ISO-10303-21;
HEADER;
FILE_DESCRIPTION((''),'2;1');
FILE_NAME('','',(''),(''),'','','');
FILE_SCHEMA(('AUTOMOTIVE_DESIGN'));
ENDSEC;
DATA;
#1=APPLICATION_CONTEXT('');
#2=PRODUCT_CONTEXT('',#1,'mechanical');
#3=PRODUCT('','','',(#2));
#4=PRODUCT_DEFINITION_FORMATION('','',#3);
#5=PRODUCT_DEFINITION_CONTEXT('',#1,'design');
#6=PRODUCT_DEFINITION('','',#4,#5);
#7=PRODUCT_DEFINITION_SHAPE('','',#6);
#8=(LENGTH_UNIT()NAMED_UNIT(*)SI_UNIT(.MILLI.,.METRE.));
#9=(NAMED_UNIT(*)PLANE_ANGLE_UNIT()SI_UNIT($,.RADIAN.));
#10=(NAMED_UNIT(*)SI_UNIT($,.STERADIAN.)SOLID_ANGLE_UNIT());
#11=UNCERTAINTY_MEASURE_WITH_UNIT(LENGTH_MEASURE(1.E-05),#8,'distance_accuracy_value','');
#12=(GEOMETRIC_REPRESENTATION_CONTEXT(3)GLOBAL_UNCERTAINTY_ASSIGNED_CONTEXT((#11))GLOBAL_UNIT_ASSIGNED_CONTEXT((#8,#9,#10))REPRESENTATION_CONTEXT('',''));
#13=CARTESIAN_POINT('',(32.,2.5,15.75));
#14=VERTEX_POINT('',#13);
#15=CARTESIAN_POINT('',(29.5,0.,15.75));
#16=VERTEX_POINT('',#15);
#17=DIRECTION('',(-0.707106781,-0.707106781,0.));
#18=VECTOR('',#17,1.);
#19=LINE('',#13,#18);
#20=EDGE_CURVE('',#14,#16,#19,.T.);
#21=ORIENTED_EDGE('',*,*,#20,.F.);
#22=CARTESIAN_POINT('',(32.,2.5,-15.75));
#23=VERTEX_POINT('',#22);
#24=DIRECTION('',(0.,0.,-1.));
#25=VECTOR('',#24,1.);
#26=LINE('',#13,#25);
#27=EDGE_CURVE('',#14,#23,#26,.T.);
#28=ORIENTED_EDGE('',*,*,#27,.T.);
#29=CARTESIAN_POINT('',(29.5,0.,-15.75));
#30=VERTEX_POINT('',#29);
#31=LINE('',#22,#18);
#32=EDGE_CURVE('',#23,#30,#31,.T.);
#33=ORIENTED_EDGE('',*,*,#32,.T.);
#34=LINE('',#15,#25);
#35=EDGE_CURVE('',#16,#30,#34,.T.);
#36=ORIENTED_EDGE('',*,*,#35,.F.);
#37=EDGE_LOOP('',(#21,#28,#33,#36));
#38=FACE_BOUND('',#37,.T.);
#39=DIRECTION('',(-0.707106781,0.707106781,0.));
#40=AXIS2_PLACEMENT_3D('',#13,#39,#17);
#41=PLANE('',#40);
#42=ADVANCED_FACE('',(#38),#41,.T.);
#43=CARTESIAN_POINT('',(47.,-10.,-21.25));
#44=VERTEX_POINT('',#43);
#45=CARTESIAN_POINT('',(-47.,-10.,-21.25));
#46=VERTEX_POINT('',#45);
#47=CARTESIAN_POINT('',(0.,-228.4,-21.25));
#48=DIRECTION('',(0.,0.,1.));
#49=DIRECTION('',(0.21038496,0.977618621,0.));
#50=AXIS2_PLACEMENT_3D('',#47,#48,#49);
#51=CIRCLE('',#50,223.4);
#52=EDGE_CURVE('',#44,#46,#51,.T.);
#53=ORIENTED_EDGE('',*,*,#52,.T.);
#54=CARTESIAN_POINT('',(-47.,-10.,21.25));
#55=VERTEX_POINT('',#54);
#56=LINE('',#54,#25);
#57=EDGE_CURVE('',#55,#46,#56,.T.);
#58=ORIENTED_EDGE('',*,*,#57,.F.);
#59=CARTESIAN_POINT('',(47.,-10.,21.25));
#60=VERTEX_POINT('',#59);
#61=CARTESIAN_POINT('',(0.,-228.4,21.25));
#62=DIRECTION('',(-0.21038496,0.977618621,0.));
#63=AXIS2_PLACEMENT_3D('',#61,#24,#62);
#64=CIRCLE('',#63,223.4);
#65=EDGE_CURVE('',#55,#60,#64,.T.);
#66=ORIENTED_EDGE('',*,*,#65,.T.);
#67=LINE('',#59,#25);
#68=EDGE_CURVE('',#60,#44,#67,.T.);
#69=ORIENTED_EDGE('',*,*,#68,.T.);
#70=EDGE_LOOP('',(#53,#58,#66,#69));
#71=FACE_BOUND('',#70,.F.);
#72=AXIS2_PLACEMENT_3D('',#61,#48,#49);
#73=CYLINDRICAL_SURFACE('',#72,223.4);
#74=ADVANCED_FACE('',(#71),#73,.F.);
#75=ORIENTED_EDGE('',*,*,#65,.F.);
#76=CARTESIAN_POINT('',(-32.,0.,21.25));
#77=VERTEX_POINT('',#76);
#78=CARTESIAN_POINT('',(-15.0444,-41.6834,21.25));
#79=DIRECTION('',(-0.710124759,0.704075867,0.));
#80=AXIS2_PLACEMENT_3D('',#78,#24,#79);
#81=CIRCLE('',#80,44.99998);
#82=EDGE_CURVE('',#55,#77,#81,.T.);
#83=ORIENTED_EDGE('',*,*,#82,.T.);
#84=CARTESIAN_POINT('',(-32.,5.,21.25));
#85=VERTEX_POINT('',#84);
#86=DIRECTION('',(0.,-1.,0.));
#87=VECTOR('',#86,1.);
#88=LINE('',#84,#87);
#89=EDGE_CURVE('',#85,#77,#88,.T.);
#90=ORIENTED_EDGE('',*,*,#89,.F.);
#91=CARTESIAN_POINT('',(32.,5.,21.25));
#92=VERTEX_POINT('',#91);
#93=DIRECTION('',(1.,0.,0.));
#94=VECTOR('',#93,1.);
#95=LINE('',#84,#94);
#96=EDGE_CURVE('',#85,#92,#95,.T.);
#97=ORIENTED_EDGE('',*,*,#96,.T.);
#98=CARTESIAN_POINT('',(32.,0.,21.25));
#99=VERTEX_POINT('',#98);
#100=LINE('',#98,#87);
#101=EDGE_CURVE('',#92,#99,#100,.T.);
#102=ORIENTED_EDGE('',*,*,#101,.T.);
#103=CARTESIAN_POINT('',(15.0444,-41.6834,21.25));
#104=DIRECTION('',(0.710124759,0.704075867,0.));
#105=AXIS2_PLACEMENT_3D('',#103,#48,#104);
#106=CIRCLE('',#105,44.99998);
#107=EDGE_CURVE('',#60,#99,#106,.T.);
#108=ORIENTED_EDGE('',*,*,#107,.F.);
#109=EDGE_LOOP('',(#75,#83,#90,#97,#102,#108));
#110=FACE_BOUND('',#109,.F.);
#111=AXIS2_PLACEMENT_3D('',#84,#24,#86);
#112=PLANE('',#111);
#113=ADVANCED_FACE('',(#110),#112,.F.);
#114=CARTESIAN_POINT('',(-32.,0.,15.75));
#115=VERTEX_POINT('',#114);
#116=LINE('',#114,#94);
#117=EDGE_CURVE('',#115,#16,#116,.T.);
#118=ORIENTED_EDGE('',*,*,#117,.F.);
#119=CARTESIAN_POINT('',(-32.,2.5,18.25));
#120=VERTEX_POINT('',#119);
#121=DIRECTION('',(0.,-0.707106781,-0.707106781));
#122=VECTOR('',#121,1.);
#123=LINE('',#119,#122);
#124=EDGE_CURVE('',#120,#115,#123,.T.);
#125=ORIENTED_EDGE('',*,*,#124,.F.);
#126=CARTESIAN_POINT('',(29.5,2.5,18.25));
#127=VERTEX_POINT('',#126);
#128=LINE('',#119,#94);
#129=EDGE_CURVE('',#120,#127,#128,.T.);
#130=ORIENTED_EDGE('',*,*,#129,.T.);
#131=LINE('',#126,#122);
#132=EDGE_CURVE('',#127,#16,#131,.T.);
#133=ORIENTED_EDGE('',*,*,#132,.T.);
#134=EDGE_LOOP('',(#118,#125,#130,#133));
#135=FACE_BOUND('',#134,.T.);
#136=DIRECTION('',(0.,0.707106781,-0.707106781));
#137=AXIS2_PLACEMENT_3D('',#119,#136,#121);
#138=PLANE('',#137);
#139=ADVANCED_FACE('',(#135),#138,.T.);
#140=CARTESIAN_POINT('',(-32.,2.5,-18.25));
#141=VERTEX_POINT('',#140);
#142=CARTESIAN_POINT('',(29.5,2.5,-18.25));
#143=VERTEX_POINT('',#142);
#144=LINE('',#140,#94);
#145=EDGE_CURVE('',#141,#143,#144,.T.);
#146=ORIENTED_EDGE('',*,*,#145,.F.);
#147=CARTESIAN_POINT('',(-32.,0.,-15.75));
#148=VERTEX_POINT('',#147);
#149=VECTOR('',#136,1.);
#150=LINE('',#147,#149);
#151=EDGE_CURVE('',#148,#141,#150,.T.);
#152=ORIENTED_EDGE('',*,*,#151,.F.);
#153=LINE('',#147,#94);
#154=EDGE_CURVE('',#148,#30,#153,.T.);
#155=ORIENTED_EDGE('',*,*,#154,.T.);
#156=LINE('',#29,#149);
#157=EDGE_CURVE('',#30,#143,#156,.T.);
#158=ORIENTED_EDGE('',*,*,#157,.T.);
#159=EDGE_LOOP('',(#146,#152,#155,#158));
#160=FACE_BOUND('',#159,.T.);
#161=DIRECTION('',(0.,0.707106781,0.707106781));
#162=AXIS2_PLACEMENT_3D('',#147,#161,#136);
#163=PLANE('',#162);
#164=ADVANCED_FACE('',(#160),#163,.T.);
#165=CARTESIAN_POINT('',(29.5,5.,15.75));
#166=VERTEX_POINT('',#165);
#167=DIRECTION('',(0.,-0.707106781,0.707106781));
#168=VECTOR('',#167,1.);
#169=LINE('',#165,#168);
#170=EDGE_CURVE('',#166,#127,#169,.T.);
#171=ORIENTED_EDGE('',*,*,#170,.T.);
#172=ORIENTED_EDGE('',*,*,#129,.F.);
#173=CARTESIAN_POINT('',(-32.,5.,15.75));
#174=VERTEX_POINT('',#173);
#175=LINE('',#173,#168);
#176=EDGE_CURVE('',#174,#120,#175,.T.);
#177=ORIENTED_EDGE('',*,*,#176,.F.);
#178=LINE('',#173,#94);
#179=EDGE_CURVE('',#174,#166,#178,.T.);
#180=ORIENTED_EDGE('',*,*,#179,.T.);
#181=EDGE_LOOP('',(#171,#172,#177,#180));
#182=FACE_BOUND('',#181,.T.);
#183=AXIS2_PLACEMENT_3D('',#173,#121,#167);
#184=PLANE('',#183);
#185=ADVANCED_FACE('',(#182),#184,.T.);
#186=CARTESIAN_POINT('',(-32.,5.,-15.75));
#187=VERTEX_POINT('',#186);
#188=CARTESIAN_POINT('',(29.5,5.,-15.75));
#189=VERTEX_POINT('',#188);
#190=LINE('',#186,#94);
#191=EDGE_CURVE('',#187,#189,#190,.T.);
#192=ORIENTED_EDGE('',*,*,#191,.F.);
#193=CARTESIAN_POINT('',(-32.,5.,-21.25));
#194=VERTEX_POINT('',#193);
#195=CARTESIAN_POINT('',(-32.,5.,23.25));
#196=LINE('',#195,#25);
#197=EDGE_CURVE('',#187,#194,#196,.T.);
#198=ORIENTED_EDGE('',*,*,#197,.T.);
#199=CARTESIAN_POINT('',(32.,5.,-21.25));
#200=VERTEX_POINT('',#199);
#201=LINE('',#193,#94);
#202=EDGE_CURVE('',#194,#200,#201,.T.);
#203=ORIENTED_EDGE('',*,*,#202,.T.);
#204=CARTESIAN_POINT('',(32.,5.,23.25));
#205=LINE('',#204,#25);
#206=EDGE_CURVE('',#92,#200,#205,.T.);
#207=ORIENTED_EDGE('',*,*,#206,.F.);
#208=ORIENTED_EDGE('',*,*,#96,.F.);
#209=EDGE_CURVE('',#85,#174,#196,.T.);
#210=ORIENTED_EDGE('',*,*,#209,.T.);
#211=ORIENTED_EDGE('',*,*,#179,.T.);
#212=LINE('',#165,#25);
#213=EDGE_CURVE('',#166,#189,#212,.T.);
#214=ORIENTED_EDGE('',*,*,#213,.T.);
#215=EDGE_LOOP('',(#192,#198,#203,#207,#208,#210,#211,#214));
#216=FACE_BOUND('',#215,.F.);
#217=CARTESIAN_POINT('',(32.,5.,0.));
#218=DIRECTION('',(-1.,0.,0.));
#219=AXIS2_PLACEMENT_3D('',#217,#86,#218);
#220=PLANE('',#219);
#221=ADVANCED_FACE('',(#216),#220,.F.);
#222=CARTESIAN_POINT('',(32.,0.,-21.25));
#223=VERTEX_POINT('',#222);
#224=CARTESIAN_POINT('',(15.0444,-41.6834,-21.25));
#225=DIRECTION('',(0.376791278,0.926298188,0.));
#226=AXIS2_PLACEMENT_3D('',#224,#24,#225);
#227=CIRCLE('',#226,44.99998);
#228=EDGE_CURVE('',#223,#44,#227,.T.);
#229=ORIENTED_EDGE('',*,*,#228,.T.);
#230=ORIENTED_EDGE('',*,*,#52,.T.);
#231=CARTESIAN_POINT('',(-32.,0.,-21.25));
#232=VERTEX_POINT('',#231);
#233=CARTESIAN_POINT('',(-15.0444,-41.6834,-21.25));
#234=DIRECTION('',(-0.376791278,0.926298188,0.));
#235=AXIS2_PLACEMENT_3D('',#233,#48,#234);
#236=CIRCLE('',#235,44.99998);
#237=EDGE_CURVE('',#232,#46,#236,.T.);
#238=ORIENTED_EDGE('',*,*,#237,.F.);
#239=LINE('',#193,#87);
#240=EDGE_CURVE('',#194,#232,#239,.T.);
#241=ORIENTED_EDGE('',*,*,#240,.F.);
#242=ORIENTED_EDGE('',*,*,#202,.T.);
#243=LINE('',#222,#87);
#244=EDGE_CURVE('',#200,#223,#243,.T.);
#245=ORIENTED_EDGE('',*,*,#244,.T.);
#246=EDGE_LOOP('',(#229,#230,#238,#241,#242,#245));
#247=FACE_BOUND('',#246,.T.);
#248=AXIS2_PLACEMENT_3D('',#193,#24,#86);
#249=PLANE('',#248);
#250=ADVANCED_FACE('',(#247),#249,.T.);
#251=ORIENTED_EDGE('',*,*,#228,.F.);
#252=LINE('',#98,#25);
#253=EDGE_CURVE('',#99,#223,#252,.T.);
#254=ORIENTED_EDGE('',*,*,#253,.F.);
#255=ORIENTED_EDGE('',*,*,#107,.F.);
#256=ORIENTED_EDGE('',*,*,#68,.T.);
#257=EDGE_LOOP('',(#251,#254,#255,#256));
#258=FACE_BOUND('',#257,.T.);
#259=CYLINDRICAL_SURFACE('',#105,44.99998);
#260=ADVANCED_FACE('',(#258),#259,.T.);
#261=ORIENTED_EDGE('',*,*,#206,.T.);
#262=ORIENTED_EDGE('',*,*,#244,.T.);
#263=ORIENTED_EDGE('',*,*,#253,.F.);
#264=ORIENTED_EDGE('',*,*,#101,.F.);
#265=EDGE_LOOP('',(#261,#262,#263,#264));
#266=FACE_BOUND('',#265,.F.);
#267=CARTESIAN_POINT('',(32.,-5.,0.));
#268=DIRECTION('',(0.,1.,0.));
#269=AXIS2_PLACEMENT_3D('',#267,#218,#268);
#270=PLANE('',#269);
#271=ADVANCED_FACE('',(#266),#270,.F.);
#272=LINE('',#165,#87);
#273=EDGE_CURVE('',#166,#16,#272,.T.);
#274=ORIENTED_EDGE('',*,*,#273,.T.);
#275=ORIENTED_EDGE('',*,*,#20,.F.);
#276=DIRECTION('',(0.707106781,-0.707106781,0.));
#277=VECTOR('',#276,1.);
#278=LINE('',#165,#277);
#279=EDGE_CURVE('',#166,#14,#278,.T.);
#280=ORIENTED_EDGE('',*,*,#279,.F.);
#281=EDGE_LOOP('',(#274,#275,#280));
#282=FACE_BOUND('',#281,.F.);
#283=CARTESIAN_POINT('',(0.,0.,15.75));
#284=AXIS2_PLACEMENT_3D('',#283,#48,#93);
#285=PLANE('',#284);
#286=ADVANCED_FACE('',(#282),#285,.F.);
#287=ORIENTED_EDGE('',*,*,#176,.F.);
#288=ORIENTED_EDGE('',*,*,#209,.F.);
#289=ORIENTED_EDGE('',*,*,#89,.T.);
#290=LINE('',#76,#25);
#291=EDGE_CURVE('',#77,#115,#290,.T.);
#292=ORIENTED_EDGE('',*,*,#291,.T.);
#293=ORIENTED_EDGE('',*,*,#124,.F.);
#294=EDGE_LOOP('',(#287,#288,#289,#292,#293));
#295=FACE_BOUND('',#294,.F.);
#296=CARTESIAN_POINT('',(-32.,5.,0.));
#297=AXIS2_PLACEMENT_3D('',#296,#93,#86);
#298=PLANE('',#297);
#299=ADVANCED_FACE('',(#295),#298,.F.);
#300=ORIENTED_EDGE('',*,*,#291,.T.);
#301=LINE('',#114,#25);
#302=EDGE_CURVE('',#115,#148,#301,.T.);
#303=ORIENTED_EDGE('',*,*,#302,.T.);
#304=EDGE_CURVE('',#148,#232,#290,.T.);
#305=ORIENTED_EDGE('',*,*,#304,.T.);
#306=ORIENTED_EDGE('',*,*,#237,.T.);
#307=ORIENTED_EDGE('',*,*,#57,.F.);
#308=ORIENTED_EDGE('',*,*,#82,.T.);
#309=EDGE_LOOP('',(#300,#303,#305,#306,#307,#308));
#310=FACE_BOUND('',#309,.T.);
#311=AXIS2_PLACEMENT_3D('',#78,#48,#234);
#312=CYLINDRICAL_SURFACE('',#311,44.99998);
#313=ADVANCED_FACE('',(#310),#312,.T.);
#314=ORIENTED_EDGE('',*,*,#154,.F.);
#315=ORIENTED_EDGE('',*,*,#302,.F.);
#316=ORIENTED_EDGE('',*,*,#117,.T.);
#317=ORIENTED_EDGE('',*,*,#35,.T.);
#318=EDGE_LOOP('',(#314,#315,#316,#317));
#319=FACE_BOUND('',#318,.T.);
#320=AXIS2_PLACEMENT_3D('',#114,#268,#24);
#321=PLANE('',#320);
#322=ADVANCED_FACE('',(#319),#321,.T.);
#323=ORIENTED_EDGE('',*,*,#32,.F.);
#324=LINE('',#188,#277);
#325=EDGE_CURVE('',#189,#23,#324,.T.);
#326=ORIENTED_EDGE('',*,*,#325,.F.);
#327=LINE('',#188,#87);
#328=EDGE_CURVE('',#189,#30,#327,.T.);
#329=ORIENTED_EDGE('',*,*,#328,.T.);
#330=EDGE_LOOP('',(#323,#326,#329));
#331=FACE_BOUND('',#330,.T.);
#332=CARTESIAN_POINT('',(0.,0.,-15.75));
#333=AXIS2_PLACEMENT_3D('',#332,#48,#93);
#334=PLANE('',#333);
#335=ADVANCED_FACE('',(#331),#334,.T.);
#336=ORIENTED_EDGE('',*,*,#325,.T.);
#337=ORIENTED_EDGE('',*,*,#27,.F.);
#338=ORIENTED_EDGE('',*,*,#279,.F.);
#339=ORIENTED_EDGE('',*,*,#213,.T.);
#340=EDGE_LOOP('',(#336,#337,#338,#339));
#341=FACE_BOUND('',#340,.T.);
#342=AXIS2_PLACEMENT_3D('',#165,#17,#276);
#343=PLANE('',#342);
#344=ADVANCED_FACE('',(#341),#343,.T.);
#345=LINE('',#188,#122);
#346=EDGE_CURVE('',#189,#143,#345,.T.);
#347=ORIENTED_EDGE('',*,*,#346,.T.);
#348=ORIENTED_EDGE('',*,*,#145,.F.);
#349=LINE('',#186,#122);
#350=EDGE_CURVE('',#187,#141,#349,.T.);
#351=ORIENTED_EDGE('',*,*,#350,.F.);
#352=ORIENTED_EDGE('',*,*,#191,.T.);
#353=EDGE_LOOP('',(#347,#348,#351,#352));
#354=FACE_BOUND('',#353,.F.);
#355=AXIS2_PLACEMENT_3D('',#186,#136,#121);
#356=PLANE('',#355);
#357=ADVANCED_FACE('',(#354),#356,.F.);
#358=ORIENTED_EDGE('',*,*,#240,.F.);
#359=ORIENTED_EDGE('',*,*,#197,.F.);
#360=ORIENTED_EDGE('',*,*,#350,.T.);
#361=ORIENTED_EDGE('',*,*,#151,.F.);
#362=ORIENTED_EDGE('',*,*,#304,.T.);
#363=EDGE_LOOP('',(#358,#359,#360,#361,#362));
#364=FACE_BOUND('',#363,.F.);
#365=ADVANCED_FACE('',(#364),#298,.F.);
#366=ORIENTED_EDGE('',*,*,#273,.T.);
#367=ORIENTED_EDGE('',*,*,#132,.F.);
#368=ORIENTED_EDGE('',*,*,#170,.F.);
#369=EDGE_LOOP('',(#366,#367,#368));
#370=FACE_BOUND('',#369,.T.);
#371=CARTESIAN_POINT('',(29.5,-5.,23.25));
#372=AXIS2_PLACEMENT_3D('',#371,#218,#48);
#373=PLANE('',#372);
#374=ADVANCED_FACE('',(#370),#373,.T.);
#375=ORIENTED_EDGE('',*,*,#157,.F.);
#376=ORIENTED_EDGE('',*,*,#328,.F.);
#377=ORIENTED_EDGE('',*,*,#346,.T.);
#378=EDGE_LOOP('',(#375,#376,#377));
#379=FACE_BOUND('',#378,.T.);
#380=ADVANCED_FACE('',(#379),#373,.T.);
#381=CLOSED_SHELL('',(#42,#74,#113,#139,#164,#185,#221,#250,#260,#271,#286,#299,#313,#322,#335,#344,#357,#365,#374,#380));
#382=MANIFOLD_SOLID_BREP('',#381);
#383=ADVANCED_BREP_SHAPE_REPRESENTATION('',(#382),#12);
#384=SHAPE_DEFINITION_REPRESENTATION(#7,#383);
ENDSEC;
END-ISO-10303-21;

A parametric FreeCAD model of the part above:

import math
import FreeCAD as App
import Part
import Sketcher

V = App.Vector
Q = App.Units.Quantity


def add_polygon(sketch, points):
    """Adds a closed chain of lines whose ends are joined by coincident constraints."""
    first, n = sketch.GeometryCount, len(points)
    for a, b in zip(points, points[1:] + points[:1]):
        sketch.addGeometry(Part.LineSegment(App.Vector(*a, 0), App.Vector(*b, 0)), False)
    for i in range(n):
        sketch.addConstraint(Sketcher.Constraint("Coincident", first + i, 2, first + (i + 1) % n, 1))

doc = App.newDocument("Part")
body = doc.addObject("PartDesign::Body", "Body")

sketch1 = body.newObject("Sketcher::SketchObject", "Sketch")
sketch1.AttachmentSupport = (doc.getObject("XY_Plane"), [""])
sketch1.MapMode = "FlatFace"
add_polygon(sketch1, [(-32, 5), (-32, -5), (32, -5), (32, 5)])
sketch1.addConstraint([
    Sketcher.Constraint("Vertical", 0),
    Sketcher.Constraint("Horizontal", 1),
    Sketcher.Constraint("Vertical", 2),
    Sketcher.Constraint("Horizontal", 3),
    Sketcher.Constraint("Symmetric", 0, 2, 2, 2, -1, 1),
    Sketcher.Constraint("DistanceX", 1, 1, 1, 2, Q("64 mm")),
    Sketcher.Constraint("DistanceY", 0, 2, 0, 1, Q("10 mm")),
])
pad1 = body.newObject("PartDesign::Pad", "Pad")
pad1.Profile = sketch1
pad1.Length = 46.5
pad1.Midplane = True

sketch2 = body.newObject("Sketcher::SketchObject", "Sketch001")
sketch2.AttachmentSupport = (doc.getObject("XY_Plane"), [""])
sketch2.MapMode = "FlatFace"
sketch2.AttachmentOffset = App.Placement(V(0, 0, 15.75), App.Rotation())
add_polygon(sketch2, [(32, 2.5), (29.5, 5), (29.5, 0)])
sketch2.addConstraint([
    Sketcher.Constraint("Vertical", 1),
    Sketcher.Constraint("PointOnObject", 1, 2, -1),
    Sketcher.Constraint("Perpendicular", 0, 2),
    Sketcher.Constraint("Equal", 0, 2),
    Sketcher.Constraint("DistanceY", 1, 2, 1, 1, Q("5 mm")),
    Sketcher.Constraint("DistanceX", -1, 1, 2, 2, Q("32 mm")),
])
pocket1 = body.newObject("PartDesign::Pocket", "Pocket")
pocket1.Profile = sketch2
pocket1.Length = 31.5

sketch3 = body.newObject("Sketcher::SketchObject", "Sketch002")
sketch3.AttachmentSupport = (doc.getObject("YZ_Plane"), [""])
sketch3.MapMode = "FlatFace"
sketch3.AttachmentOffset = App.Placement(V(0, 0, -32), App.Rotation())
add_polygon(sketch3, [(2.5, -18.2), (0, -15.8), (0, 15.8), (2.5, 18.2), (5, 15.8), (5, -15.8)])
sketch3.addConstraint([
    Sketcher.Constraint("Vertical", 1),
    Sketcher.Constraint("Vertical", 4),
    Sketcher.Constraint("Symmetric", 0, 2, 1, 2, -1, 1),
    Sketcher.Constraint("Symmetric", 2, 2, 5, 2, -1),
    Sketcher.Constraint("Perpendicular", 0, 2),
    Sketcher.Constraint("Perpendicular", 2, 3),
    Sketcher.Constraint("Perpendicular", 3, 5),
    Sketcher.Constraint("Horizontal", 1, 2, 3, 2),
    Sketcher.Constraint("DistanceY", 1, 1, 1, 2, Q("31.5 mm")),
    Sketcher.Constraint("DistanceX", -1, 1, 3, 2, Q("5 mm")),
])
pocket2 = body.newObject("PartDesign::Pocket", "Pocket001")
pocket2.Profile = sketch3
pocket2.Length = 61.5
pocket2.Reversed = True

sketch4 = body.newObject("Sketcher::SketchObject", "Sketch003")
sketch4.AttachmentSupport = (doc.getObject("YZ_Plane"), [""])
sketch4.MapMode = "FlatFace"
sketch4.AttachmentOffset = App.Placement(V(0, 0, -32), App.Rotation())
add_polygon(sketch4, [(5, 23.2), (5, 21.2), (-5, 21.2), (-5, 23.2)])
add_polygon(sketch4, [(5, -21.2), (5, -23.2), (-5, -23.2), (-5, -21.2)])
sketch4.addConstraint([
    Sketcher.Constraint("Vertical", 0),
    Sketcher.Constraint("Horizontal", 1),
    Sketcher.Constraint("Vertical", 2),
    Sketcher.Constraint("Horizontal", 3),
    Sketcher.Constraint("Vertical", 4),
    Sketcher.Constraint("Horizontal", 5),
    Sketcher.Constraint("Vertical", 6),
    Sketcher.Constraint("Horizontal", 7),
    Sketcher.Constraint("Symmetric", 2, 2, 4, 2, -1, 1),
    Sketcher.Constraint("Symmetric", 0, 2, 6, 2, -1, 1),
    Sketcher.Constraint("Vertical", 3, 2, 4, 2),
    Sketcher.Constraint("DistanceY", 0, 2, 0, 1, Q("2 mm")),
    Sketcher.Constraint("DistanceX", 1, 2, 1, 1, Q("10 mm")),
    Sketcher.Constraint("DistanceY", 4, 2, 0, 2, Q("44.5 mm")),
])
pocket3 = body.newObject("PartDesign::Pocket", "Pocket002")
pocket3.Profile = sketch4
pocket3.Type = "ThroughAll"
pocket3.Reversed = True

sketch5 = body.newObject("Sketcher::SketchObject", "Sketch004")
sketch5.AttachmentSupport = (doc.getObject("XY_Plane"), [""])
sketch5.MapMode = "FlatFace"
sketch5.AttachmentOffset = App.Placement(V(0, 0, 21.25), App.Rotation())
sketch5.addGeometry([
    Part.LineSegment(V(-32, -5, 0), V(-32, 0, 0)),
    Part.ArcOfCircle(Part.Circle(V(-15, -42, 0), V(0, 0, 1), 45), math.radians(112), math.radians(135)),
    Part.ArcOfCircle(Part.Circle(V(0, -228, 0), V(0, 0, 1), 223), math.radians(90), math.radians(102.14)),
    Part.LineSegment(V(0, -5, 0), V(-32, -5, 0)),
    Part.LineSegment(V(32, -5, 0), V(0, -5, 0)),
    Part.ArcOfCircle(Part.Circle(V(0, -228, 0), V(0, 0, 1), 223), math.radians(77.86), math.radians(90)),
    Part.ArcOfCircle(Part.Circle(V(15, -42, 0), V(0, 0, 1), 45), math.radians(45), math.radians(68)),
    Part.LineSegment(V(32, 0, 0), V(32, -5, 0)),
], False)
sketch5.addConstraint([
    Sketcher.Constraint("Coincident", 0, 2, 1, 1),
    Sketcher.Constraint("Coincident", 1, 2, 2, 2),
    Sketcher.Constraint("Tangent", 2, 1, 3, 1),
    Sketcher.Constraint("Coincident", 3, 2, 0, 1),
    Sketcher.Constraint("Tangent", 4, 2, 5, 2),
    Sketcher.Constraint("Coincident", 5, 1, 6, 1),
    Sketcher.Constraint("Coincident", 6, 2, 7, 1),
    Sketcher.Constraint("Coincident", 7, 2, 4, 1),
    Sketcher.Constraint("Vertical", 0),
    Sketcher.Constraint("Horizontal", 3),
    Sketcher.Constraint("Horizontal", 4),
    Sketcher.Constraint("Vertical", 7),
    Sketcher.Constraint("Coincident", 5, 3, 2, 3),
    Sketcher.Constraint("Equal", 2, 5),
    Sketcher.Constraint("Equal", 1, 6),
    Sketcher.Constraint("Symmetric", 0, 2, 6, 2, -1, 1),
    Sketcher.Constraint("Symmetric", 1, 3, 6, 3, -2),
    Sketcher.Constraint("PointOnObject", 2, 3, -2),
    Sketcher.Constraint("Radius", 1, Q("45 mm")),
    Sketcher.Constraint("Radius", 2, Q("223.4 mm")),
    Sketcher.Constraint("DistanceX", 3, 2, 3, 1, Q("32 mm")),
    Sketcher.Constraint("DistanceY", 0, 1, 0, 2, Q("5 mm")),
    Sketcher.Constraint("DistanceX", 1, 2, -1, 1, Q("47 mm")),
])
pad2 = body.newObject("PartDesign::Pad", "Pad001")
pad2.Profile = sketch5
pad2.Length = 42.5
pad2.Reversed = True

doc.recompute()
